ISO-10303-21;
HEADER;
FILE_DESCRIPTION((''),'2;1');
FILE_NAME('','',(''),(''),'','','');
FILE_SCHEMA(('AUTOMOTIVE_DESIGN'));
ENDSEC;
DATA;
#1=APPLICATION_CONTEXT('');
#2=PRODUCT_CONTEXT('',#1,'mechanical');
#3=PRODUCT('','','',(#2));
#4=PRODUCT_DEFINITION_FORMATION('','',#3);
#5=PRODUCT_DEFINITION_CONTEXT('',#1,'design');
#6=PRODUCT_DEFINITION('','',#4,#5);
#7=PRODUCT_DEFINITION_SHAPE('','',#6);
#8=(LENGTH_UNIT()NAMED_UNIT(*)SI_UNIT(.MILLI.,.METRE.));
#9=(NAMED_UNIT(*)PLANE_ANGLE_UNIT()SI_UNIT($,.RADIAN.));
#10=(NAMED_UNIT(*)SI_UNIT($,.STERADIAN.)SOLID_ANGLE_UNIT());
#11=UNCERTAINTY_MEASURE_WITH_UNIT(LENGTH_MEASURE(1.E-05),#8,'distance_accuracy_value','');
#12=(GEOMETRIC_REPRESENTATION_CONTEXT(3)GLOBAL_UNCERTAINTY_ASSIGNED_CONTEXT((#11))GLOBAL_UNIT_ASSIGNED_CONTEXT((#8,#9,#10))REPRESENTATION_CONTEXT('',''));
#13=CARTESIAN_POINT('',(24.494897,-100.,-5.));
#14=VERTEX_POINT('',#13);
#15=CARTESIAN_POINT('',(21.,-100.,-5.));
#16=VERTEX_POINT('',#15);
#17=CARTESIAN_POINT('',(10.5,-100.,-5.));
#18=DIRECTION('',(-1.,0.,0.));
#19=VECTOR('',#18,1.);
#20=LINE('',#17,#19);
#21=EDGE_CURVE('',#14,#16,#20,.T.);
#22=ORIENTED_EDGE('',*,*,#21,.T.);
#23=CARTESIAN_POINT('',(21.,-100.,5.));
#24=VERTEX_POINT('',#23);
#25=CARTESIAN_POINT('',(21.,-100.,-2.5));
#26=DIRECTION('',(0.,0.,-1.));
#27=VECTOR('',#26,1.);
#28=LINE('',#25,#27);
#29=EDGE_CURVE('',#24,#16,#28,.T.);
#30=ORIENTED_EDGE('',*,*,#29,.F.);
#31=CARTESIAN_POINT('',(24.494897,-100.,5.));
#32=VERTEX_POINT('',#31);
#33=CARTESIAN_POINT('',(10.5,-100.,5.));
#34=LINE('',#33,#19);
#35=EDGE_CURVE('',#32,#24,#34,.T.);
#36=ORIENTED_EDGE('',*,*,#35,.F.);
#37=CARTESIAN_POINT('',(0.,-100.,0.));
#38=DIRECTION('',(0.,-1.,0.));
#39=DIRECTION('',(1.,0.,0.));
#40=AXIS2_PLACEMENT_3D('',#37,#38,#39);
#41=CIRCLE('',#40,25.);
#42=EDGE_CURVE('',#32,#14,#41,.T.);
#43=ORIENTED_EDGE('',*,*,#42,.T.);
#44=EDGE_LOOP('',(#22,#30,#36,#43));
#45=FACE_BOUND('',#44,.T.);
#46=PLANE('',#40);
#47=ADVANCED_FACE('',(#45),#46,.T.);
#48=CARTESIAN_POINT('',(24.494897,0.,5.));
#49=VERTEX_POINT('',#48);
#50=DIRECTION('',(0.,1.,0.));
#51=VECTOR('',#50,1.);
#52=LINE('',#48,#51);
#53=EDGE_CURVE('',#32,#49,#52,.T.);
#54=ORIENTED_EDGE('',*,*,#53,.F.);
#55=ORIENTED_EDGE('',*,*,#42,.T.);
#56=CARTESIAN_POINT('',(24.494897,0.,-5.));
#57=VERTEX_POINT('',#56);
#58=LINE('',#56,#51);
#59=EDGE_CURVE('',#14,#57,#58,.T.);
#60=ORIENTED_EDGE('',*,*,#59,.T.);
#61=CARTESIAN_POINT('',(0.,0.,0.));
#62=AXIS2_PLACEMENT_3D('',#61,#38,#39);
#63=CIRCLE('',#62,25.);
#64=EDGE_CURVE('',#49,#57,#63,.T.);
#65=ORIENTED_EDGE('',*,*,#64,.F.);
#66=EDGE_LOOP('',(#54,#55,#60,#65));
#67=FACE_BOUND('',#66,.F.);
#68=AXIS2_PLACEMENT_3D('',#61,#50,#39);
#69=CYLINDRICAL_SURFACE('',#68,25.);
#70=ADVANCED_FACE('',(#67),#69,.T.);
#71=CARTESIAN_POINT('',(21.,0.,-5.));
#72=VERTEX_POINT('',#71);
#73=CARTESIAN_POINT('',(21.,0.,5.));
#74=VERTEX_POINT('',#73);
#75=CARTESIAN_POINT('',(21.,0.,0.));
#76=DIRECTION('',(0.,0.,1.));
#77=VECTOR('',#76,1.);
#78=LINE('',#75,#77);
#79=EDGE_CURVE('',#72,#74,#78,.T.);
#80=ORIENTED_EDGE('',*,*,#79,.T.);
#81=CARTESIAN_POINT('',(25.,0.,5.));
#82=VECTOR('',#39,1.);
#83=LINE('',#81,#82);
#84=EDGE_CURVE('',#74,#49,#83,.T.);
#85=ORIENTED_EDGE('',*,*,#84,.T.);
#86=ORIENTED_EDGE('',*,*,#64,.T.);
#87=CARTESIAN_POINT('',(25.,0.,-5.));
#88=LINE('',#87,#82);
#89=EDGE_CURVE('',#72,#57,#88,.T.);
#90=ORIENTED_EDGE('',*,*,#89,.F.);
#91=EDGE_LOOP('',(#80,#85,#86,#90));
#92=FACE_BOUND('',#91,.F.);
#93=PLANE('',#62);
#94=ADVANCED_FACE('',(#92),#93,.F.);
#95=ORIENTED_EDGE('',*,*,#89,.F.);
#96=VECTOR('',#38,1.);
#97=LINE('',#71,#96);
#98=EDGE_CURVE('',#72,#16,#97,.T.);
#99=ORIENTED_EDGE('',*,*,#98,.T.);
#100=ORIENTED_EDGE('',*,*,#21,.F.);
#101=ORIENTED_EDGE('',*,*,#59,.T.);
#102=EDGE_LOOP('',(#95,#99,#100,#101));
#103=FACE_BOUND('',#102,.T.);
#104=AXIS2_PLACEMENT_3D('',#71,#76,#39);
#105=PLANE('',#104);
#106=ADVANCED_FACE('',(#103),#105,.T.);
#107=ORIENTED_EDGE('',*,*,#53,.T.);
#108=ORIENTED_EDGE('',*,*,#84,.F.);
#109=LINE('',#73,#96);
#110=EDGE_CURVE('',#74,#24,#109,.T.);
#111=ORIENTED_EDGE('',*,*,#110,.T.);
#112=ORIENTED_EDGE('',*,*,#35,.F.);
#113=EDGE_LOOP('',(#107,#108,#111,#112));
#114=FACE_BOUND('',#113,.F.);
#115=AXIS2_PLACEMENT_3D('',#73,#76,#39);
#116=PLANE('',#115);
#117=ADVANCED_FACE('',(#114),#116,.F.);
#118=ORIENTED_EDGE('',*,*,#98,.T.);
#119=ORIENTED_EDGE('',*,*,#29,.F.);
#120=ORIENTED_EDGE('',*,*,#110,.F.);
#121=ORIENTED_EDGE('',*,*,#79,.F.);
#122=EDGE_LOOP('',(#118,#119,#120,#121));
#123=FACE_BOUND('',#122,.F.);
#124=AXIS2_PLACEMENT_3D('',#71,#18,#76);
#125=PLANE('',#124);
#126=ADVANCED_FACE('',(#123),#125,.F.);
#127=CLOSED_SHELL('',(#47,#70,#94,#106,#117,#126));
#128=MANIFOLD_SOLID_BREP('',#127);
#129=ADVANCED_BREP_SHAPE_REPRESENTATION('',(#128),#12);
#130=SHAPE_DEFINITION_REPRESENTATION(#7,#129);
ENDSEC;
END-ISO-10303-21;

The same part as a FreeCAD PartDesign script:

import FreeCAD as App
import Part
import Sketcher

V = App.Vector


def add_polygon(sketch, points):
    """Adds a closed chain of lines whose ends are joined by coincident constraints."""
    first, n = sketch.GeometryCount, len(points)
    for a, b in zip(points, points[1:] + points[:1]):
        sketch.addGeometry(Part.LineSegment(App.Vector(*a, 0), App.Vector(*b, 0)), False)
    for i in range(n):
        sketch.addConstraint(Sketcher.Constraint("Coincident", first + i, 2, first + (i + 1) % n, 1))

doc = App.newDocument("Part")
params = doc.addObject("Spreadsheet::Sheet", "Params")
for row, (alias, value) in enumerate([
    ("sketch1_diameter", "50 mm"),
    ("pad1_length", "100 mm"),
    ("sketch2_width", "8 mm"),
    ("sketch2_height", "10 mm"),
], start=1):
    params.set(f"A{row}", alias)
    params.set(f"B{row}", "=" + value)
    params.setAlias(f"B{row}", alias)

body = doc.addObject("PartDesign::Body", "Body")

sketch1 = body.newObject("Sketcher::SketchObject", "Sketch")
sketch1.AttachmentSupport = (doc.getObject("XZ_Plane"), [""])
sketch1.MapMode = "FlatFace"
sketch1.addGeometry(Part.Circle(V(0, 0, 0), V(0, 0, 1), 25), False)
sketch1.addConstraint(Sketcher.Constraint("Coincident", 0, 3, -1, 1))
sketch1.addConstraint(Sketcher.Constraint("Diameter", 0, 50.0))
sketch1.setExpression("Constraints[1]", "Params.sketch1_diameter")
pad1 = body.newObject("PartDesign::Pad", "Pad")
pad1.Profile = sketch1
pad1.setExpression("Length", "Params.pad1_length")

sketch2 = body.newObject("Sketcher::SketchObject", "Sketch001")
sketch2.AttachmentSupport = (doc.getObject("XZ_Plane"), [""])
sketch2.MapMode = "FlatFace"
add_polygon(sketch2, [(21, 5), (21, -5), (29, -5), (29, 5)])
sketch2.addConstraint(Sketcher.Constraint("Vertical", 0))
sketch2.addConstraint(Sketcher.Constraint("Horizontal", 1))
sketch2.addConstraint(Sketcher.Constraint("Vertical", 2))
sketch2.addConstraint(Sketcher.Constraint("Horizontal", 3))
sketch2.addConstraint(Sketcher.Constraint("DistanceX", 1, 1, 1, 2, 8.0))
sketch2.addConstraint(Sketcher.Constraint("DistanceY", 0, 2, 0, 1, 10.0))
sketch2.addConstraint(Sketcher.Constraint("DistanceX", -1, 1, 0, 2, 21.0))
sketch2.addConstraint(Sketcher.Constraint("DistanceY", 0, 2, -1, 1, 5.0))
sketch2.setExpression("Constraints[8]", "Params.sketch2_width")
sketch2.setExpression("Constraints[9]", "Params.sketch2_height")
pocket1 = body.newObject("PartDesign::Pocket", "Pocket")
pocket1.Profile = sketch2
pocket1.Type = "ThroughAll"
pocket1.Reversed = True

doc.recompute()
